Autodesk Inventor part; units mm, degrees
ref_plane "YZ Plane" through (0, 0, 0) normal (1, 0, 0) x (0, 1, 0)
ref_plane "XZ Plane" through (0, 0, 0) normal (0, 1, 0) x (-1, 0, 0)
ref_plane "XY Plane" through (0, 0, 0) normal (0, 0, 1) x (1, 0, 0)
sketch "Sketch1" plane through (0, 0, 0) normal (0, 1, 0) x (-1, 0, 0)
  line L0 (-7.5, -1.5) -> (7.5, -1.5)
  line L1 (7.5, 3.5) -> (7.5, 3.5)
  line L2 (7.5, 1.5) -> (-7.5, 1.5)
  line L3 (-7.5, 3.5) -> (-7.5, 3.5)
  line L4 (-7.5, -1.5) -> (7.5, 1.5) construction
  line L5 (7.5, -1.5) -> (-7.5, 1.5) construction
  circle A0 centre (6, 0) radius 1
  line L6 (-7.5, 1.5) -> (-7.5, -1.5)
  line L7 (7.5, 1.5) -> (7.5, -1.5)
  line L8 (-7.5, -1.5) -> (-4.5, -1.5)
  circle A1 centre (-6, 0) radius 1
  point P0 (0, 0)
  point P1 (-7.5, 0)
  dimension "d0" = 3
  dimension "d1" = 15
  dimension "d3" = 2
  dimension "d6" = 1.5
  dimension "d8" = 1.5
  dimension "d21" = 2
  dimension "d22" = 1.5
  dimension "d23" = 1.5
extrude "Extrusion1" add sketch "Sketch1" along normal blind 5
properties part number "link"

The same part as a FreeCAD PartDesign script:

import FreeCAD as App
import Part
import Sketcher

V = App.Vector


def add_polygon(sketch, points):
    """Adds a closed chain of lines whose ends are joined by coincident constraints."""
    first, n = sketch.GeometryCount, len(points)
    for a, b in zip(points, points[1:] + points[:1]):
        sketch.addGeometry(Part.LineSegment(App.Vector(*a, 0), App.Vector(*b, 0)), False)
    for i in range(n):
        sketch.addConstraint(Sketcher.Constraint("Coincident", first + i, 2, first + (i + 1) % n, 1))

doc = App.newDocument("Part")
params = doc.addObject("Spreadsheet::Sheet", "Params")
for row, (alias, value) in enumerate([
    ("sketch1_diameter", "2 mm"),
    ("sketch1_width", "15 mm"),
    ("sketch1_height", "3 mm"),
    ("pad1_length", "5 mm"),
], start=1):
    params.set(f"A{row}", alias)
    params.set(f"B{row}", "=" + value)
    params.setAlias(f"B{row}", alias)

body = doc.addObject("PartDesign::Body", "Body")

# Sketch on XZ plane
sketch1 = body.newObject("Sketcher::SketchObject", "Sketch")
sketch1.AttachmentSupport = (doc.getObject("XZ_Plane"), [""])
sketch1.MapMode = "FlatFace"
add_polygon(sketch1, [(7.5, 1.5), (7.5, -1.5), (-7.5, -1.5), (-7.5, 1.5)])  # lines 0-3
sketch1.addGeometry(Part.Circle(V(6, 0, 0), V(0, 0, 1), 1), False)  # 4
sketch1.addGeometry(Part.Circle(V(-6, 0, 0), V(0, 0, 1), 1), False)  # 5
sketch1.addConstraint(Sketcher.Constraint("Vertical", 0))
sketch1.addConstraint(Sketcher.Constraint("Horizontal", 1))
sketch1.addConstraint(Sketcher.Constraint("Vertical", 2))
sketch1.addConstraint(Sketcher.Constraint("Horizontal", 3))
sketch1.addConstraint(Sketcher.Constraint("Equal", 4, 5))
sketch1.addConstraint(Sketcher.Constraint("Symmetric", 4, 3, 5, 3, -1, 1))
sketch1.addConstraint(Sketcher.Constraint("Symmetric", 0, 2, 2, 2, -1, 1))
sketch1.addConstraint(Sketcher.Constraint("PointOnObject", 4, 3, -1))
sketch1.addConstraint(Sketcher.Constraint("Diameter", 4, 2.0))
sketch1.addConstraint(Sketcher.Constraint("DistanceX", 1, 2, 1, 1, 15.0))
sketch1.addConstraint(Sketcher.Constraint("DistanceY", 0, 2, 0, 1, 3.0))
sketch1.addConstraint(Sketcher.Constraint("DistanceX", 4, 3, 0, 2, 1.5))
sketch1.setExpression("Constraints[12]", "Params.sketch1_diameter")
sketch1.setExpression("Constraints[13]", "Params.sketch1_width")
sketch1.setExpression("Constraints[14]", "Params.sketch1_height")
pad1 = body.newObject("PartDesign::Pad", "Pad")
pad1.Profile = sketch1
pad1.setExpression("Length", "Params.pad1_length")
pad1.Reversed = True

doc.recompute()
